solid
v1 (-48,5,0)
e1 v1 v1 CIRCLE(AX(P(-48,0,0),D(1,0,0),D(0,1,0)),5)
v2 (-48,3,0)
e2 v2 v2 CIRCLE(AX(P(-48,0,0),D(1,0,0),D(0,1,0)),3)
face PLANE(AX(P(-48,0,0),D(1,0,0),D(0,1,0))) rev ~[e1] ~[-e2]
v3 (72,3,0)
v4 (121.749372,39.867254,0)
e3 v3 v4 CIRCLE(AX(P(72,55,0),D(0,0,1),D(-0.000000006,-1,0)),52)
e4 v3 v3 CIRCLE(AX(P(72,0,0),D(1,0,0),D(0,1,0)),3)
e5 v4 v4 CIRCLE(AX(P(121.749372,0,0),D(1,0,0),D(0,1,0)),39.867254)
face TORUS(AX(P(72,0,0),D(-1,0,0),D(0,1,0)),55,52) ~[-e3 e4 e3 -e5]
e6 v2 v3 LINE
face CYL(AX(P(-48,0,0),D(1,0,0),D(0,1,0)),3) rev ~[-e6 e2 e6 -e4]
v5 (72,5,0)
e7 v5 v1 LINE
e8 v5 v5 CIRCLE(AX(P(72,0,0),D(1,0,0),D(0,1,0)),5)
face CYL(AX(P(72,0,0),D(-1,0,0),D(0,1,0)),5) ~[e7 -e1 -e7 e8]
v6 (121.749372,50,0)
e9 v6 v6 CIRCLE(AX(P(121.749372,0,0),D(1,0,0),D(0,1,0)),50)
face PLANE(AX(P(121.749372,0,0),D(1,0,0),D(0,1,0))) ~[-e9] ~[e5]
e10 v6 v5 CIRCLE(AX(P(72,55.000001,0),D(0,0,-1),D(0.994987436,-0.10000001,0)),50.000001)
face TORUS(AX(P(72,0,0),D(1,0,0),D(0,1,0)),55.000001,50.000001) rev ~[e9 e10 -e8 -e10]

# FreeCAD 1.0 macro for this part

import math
import FreeCAD as App
import Part
import Sketcher

V = App.Vector

doc = App.newDocument("Part")
body = doc.addObject("PartDesign::Body", "Body")

sketch1 = body.newObject("Sketcher::SketchObject", "Sketch")
sketch1.AttachmentSupport = (doc.getObject("XY_Plane"), [""])
sketch1.MapMode = "FlatFace"
sketch1.addGeometry([
    Part.LineSegment(V(72, 5, 0), V(-48, 5, 0)),
    Part.LineSegment(V(-48, 5, 0), V(-48, 3, 0)),
    Part.LineSegment(V(-48, 3, 0), V(72, 3, 0)),
    Part.ArcOfCircle(Part.Circle(V(72, 55, 0), V(0, 0, 1), 52), math.radians(-90), math.radians(-17)),
    Part.LineSegment(V(121.7, 39.9, 0), V(121.7, 50, 0)),
    Part.ArcOfCircle(Part.Circle(V(72, 55, 0), V(0, 0, 1), 50), math.radians(-90), math.radians(-6)),
], False)
sketch1.addConstraint([
    Sketcher.Constraint("Coincident", 0, 2, 1, 1),
    Sketcher.Constraint("Coincident", 1, 2, 2, 1),
    Sketcher.Constraint("Tangent", 2, 2, 3, 1),
    Sketcher.Constraint("Coincident", 3, 2, 4, 1),
    Sketcher.Constraint("Coincident", 4, 2, 5, 2),
    Sketcher.Constraint("Tangent", 5, 1, 0, 1),
    Sketcher.Constraint("Horizontal", 0),
    Sketcher.Constraint("Vertical", 1),
    Sketcher.Constraint("Horizontal", 2),
    Sketcher.Constraint("Vertical", 4),
    Sketcher.Constraint("Coincident", 5, 3, 3, 3),
    Sketcher.Constraint("Radius", 3, 52.0),
    Sketcher.Constraint("Radius", 5, 50.000001),
    Sketcher.Constraint("DistanceX", 0, 2, 0, 1, 120.0),
    Sketcher.Constraint("DistanceX", -1, 1, 3, 3, 72.0),
    Sketcher.Constraint("DistanceY", -1, 1, 3, 3, 55.0),
    Sketcher.Constraint("DistanceY", -1, 1, 4, 2, 50.0),
])
revolution = body.newObject("PartDesign::Revolution", "Revolution")
revolution.Profile = sketch1
revolution.ReferenceAxis = (sketch1, ["H_Axis"])
revolution.Angle = 360

doc.recompute()
